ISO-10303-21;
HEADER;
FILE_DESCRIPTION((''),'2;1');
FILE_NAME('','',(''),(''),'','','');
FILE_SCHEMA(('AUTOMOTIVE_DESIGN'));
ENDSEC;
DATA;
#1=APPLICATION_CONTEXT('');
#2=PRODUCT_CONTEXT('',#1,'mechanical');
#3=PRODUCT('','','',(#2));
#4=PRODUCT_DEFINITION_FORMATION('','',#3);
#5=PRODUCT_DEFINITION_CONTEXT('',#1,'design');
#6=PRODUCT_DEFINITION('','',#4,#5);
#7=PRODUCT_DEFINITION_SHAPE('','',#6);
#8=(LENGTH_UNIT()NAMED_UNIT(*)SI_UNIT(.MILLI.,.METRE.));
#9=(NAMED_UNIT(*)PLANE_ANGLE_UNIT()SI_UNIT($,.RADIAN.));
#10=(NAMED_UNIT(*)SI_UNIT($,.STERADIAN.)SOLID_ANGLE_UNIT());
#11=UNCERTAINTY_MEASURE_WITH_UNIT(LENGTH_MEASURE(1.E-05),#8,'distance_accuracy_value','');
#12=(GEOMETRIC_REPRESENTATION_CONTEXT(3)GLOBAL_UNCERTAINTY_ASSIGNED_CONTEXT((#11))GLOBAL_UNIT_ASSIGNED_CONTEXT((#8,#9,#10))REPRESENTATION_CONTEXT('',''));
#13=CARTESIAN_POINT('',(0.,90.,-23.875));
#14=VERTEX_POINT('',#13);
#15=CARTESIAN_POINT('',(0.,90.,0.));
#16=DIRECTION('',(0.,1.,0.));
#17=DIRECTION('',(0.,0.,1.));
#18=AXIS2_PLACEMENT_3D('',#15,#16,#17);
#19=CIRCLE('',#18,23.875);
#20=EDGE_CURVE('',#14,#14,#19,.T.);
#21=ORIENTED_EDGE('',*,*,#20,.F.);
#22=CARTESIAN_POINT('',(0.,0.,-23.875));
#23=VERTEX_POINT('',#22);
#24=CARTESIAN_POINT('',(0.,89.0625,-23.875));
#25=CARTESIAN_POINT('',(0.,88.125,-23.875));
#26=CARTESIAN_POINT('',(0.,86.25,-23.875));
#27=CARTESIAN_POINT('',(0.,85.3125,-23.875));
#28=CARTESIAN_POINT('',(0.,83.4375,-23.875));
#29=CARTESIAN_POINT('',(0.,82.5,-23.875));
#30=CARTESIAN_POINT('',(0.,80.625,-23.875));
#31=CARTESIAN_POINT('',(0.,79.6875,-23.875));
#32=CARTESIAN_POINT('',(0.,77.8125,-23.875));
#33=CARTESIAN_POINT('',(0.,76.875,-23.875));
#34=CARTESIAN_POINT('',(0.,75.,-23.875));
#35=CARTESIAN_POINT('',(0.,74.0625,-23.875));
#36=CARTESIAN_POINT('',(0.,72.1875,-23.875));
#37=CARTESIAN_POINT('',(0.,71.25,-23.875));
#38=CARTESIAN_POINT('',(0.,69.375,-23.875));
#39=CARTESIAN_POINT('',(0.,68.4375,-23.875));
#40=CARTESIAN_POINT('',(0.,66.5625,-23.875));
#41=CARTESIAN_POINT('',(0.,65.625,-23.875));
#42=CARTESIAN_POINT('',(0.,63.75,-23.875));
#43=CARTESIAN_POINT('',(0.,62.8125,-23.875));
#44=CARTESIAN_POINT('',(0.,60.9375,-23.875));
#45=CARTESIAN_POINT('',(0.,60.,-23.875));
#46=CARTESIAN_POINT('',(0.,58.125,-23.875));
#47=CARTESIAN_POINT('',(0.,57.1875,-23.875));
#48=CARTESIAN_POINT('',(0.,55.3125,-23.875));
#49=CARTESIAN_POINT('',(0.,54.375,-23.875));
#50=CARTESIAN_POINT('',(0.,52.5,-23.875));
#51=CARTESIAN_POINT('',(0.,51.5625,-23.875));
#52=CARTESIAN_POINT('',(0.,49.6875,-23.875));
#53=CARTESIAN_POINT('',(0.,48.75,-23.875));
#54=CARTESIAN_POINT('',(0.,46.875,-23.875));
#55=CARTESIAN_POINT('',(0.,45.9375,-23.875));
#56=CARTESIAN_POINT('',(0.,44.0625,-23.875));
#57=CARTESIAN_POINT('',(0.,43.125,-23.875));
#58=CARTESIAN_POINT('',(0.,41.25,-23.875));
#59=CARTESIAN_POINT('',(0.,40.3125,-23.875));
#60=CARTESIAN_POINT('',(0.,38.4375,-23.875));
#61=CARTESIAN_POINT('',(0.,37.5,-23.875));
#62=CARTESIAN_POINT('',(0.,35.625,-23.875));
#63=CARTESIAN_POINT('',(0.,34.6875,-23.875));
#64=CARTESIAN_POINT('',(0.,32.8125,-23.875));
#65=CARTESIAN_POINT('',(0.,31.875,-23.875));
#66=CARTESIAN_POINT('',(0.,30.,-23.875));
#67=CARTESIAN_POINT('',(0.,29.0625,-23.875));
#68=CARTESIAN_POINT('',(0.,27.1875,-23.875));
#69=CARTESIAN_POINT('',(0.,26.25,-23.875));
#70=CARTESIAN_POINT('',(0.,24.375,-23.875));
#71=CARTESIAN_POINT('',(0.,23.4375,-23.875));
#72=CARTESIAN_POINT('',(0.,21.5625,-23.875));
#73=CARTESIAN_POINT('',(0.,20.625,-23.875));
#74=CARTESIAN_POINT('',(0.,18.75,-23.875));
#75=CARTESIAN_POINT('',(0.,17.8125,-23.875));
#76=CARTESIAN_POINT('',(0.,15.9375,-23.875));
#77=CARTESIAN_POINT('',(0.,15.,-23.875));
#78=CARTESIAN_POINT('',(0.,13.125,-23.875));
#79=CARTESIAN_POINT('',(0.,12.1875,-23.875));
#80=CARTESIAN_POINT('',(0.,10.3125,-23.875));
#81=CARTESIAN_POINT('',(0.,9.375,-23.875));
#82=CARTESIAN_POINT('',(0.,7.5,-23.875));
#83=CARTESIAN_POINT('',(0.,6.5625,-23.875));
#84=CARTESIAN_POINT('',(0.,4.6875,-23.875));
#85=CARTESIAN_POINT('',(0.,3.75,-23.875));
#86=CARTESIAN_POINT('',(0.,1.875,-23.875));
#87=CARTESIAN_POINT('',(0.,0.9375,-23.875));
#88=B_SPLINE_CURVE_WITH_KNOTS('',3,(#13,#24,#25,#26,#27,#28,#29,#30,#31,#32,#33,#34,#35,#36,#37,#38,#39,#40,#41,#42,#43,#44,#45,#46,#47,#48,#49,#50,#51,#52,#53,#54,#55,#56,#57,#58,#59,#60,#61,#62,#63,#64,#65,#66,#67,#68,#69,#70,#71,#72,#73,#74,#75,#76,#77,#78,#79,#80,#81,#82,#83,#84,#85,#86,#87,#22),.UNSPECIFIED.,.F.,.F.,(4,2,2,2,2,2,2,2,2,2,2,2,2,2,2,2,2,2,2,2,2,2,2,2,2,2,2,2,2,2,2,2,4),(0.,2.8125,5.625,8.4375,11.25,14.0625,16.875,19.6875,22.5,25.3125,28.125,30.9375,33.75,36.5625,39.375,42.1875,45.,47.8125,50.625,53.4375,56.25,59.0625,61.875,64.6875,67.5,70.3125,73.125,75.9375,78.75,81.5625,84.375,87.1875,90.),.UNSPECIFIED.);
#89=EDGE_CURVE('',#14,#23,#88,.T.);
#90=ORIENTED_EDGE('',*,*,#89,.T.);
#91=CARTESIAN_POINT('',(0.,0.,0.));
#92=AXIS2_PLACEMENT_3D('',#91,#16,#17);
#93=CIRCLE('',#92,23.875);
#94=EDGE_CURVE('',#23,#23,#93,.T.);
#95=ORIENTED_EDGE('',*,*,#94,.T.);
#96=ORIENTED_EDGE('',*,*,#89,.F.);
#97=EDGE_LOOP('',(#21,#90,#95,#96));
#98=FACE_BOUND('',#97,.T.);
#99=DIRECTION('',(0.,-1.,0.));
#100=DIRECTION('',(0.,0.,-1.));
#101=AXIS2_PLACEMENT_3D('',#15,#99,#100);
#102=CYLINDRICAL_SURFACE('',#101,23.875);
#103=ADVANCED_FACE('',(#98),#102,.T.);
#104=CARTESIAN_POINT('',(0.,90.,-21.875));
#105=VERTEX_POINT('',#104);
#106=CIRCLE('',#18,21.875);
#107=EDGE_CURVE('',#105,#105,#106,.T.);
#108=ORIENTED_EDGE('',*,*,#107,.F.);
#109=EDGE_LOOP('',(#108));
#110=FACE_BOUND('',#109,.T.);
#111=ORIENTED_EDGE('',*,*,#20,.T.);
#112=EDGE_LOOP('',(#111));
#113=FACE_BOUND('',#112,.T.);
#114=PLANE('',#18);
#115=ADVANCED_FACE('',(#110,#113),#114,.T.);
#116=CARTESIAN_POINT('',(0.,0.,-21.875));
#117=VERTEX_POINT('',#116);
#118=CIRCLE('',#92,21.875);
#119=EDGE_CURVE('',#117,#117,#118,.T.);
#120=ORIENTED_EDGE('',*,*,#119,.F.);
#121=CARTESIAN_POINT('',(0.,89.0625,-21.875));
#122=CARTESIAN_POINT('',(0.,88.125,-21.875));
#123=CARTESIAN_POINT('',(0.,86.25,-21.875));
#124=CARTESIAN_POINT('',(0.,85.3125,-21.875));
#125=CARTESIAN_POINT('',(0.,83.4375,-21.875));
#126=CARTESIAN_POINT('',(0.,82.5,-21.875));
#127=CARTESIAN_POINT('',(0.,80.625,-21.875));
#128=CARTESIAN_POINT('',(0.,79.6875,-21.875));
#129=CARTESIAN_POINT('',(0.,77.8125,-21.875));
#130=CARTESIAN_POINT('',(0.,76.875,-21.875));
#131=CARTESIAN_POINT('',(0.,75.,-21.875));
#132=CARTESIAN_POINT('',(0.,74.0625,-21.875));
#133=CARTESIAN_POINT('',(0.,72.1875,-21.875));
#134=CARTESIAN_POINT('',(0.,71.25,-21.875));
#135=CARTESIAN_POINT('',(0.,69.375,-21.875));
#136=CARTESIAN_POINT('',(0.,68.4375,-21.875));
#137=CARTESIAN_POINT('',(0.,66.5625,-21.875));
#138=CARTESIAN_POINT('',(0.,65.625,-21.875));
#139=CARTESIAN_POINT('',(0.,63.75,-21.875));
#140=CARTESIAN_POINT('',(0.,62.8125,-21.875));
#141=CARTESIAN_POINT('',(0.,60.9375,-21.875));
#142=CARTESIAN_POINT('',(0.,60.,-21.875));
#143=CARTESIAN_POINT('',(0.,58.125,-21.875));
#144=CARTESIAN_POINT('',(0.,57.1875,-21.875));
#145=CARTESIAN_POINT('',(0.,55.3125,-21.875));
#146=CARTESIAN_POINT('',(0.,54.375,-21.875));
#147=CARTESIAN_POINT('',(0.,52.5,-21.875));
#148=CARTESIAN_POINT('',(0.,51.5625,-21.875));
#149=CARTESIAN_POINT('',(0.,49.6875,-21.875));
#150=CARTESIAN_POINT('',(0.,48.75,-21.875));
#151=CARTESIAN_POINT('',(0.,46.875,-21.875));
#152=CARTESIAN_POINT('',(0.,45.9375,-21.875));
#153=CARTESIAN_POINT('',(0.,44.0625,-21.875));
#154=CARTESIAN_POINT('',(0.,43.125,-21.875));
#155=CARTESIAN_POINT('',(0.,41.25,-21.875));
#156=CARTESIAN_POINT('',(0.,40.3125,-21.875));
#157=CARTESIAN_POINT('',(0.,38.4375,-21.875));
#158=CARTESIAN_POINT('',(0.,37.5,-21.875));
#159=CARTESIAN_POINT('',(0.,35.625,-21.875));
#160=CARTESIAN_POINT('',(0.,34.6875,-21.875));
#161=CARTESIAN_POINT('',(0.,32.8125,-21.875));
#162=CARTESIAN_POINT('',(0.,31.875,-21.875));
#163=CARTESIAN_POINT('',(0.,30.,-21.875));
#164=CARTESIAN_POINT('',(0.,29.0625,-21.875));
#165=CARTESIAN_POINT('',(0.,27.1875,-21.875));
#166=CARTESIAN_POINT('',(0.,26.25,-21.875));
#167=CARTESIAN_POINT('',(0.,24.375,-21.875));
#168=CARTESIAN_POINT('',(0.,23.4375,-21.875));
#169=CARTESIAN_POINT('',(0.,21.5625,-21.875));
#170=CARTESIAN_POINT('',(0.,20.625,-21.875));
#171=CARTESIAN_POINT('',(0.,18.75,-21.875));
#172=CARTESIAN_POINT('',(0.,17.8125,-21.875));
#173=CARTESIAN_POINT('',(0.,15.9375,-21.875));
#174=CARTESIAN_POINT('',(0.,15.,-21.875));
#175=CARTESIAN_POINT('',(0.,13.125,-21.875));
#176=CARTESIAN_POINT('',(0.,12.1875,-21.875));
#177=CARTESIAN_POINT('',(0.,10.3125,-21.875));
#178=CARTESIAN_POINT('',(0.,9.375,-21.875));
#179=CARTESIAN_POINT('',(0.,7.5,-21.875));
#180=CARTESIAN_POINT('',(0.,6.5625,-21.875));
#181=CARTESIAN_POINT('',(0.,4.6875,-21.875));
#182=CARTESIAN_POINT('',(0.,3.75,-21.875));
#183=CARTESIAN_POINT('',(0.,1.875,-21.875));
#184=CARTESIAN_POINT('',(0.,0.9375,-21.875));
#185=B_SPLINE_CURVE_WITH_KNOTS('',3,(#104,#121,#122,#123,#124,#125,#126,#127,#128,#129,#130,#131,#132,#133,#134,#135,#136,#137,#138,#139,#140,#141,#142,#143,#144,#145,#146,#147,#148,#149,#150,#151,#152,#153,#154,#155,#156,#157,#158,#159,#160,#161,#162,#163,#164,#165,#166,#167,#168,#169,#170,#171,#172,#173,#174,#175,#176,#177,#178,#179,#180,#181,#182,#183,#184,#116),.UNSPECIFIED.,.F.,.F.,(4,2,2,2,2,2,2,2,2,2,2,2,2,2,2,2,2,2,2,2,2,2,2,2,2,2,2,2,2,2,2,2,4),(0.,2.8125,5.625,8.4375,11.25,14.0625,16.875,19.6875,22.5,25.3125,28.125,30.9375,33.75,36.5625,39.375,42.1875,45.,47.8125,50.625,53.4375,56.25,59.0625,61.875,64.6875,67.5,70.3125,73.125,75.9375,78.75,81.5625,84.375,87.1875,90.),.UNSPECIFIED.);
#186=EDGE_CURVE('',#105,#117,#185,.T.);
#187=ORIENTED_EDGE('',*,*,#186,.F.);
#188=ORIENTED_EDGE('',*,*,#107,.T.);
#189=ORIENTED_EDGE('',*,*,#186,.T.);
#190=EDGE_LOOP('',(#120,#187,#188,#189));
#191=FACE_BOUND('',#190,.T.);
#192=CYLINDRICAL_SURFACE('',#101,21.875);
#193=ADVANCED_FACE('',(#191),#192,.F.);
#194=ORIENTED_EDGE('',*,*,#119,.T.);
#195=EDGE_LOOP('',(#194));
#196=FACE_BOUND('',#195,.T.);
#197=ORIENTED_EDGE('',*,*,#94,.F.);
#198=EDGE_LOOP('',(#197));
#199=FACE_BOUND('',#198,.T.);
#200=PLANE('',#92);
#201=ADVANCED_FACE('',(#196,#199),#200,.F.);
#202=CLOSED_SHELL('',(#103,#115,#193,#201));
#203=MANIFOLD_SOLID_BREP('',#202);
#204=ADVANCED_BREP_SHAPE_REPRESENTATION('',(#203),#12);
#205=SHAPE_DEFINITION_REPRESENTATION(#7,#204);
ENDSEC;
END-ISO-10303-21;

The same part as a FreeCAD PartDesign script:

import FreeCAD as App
import Part
import Sketcher

V = App.Vector
Q = App.Units.Quantity

doc = App.newDocument("Part")
body = doc.addObject("PartDesign::Body", "Body")

# Sketch on XZ plane
sketch1 = body.newObject("Sketcher::SketchObject", "Sketch")
sketch1.AttachmentSupport = (doc.getObject("XZ_Plane"), [""])
sketch1.MapMode = "FlatFace"
sketch1.addGeometry(Part.Circle(V(0, 0, 0), V(0, 0, 1), 24), False)
sketch1.addGeometry(Part.Circle(V(0, 0, 0), V(0, 0, 1), 22), False)
sketch1.addConstraint(Sketcher.Constraint("Coincident", 0, 3, -1, 1))
sketch1.addConstraint(Sketcher.Constraint("Coincident", 1, 3, -1, 1))
sketch1.addConstraint(Sketcher.Constraint("Diameter", 0, Q("47.75 mm")))
sketch1.addConstraint(Sketcher.Constraint("Diameter", 1, Q("43.75 mm")))
pad1 = body.newObject("PartDesign::Pad", "Pad")
pad1.Profile = sketch1
pad1.Length = 90
pad1.Reversed = True

doc.recompute()
